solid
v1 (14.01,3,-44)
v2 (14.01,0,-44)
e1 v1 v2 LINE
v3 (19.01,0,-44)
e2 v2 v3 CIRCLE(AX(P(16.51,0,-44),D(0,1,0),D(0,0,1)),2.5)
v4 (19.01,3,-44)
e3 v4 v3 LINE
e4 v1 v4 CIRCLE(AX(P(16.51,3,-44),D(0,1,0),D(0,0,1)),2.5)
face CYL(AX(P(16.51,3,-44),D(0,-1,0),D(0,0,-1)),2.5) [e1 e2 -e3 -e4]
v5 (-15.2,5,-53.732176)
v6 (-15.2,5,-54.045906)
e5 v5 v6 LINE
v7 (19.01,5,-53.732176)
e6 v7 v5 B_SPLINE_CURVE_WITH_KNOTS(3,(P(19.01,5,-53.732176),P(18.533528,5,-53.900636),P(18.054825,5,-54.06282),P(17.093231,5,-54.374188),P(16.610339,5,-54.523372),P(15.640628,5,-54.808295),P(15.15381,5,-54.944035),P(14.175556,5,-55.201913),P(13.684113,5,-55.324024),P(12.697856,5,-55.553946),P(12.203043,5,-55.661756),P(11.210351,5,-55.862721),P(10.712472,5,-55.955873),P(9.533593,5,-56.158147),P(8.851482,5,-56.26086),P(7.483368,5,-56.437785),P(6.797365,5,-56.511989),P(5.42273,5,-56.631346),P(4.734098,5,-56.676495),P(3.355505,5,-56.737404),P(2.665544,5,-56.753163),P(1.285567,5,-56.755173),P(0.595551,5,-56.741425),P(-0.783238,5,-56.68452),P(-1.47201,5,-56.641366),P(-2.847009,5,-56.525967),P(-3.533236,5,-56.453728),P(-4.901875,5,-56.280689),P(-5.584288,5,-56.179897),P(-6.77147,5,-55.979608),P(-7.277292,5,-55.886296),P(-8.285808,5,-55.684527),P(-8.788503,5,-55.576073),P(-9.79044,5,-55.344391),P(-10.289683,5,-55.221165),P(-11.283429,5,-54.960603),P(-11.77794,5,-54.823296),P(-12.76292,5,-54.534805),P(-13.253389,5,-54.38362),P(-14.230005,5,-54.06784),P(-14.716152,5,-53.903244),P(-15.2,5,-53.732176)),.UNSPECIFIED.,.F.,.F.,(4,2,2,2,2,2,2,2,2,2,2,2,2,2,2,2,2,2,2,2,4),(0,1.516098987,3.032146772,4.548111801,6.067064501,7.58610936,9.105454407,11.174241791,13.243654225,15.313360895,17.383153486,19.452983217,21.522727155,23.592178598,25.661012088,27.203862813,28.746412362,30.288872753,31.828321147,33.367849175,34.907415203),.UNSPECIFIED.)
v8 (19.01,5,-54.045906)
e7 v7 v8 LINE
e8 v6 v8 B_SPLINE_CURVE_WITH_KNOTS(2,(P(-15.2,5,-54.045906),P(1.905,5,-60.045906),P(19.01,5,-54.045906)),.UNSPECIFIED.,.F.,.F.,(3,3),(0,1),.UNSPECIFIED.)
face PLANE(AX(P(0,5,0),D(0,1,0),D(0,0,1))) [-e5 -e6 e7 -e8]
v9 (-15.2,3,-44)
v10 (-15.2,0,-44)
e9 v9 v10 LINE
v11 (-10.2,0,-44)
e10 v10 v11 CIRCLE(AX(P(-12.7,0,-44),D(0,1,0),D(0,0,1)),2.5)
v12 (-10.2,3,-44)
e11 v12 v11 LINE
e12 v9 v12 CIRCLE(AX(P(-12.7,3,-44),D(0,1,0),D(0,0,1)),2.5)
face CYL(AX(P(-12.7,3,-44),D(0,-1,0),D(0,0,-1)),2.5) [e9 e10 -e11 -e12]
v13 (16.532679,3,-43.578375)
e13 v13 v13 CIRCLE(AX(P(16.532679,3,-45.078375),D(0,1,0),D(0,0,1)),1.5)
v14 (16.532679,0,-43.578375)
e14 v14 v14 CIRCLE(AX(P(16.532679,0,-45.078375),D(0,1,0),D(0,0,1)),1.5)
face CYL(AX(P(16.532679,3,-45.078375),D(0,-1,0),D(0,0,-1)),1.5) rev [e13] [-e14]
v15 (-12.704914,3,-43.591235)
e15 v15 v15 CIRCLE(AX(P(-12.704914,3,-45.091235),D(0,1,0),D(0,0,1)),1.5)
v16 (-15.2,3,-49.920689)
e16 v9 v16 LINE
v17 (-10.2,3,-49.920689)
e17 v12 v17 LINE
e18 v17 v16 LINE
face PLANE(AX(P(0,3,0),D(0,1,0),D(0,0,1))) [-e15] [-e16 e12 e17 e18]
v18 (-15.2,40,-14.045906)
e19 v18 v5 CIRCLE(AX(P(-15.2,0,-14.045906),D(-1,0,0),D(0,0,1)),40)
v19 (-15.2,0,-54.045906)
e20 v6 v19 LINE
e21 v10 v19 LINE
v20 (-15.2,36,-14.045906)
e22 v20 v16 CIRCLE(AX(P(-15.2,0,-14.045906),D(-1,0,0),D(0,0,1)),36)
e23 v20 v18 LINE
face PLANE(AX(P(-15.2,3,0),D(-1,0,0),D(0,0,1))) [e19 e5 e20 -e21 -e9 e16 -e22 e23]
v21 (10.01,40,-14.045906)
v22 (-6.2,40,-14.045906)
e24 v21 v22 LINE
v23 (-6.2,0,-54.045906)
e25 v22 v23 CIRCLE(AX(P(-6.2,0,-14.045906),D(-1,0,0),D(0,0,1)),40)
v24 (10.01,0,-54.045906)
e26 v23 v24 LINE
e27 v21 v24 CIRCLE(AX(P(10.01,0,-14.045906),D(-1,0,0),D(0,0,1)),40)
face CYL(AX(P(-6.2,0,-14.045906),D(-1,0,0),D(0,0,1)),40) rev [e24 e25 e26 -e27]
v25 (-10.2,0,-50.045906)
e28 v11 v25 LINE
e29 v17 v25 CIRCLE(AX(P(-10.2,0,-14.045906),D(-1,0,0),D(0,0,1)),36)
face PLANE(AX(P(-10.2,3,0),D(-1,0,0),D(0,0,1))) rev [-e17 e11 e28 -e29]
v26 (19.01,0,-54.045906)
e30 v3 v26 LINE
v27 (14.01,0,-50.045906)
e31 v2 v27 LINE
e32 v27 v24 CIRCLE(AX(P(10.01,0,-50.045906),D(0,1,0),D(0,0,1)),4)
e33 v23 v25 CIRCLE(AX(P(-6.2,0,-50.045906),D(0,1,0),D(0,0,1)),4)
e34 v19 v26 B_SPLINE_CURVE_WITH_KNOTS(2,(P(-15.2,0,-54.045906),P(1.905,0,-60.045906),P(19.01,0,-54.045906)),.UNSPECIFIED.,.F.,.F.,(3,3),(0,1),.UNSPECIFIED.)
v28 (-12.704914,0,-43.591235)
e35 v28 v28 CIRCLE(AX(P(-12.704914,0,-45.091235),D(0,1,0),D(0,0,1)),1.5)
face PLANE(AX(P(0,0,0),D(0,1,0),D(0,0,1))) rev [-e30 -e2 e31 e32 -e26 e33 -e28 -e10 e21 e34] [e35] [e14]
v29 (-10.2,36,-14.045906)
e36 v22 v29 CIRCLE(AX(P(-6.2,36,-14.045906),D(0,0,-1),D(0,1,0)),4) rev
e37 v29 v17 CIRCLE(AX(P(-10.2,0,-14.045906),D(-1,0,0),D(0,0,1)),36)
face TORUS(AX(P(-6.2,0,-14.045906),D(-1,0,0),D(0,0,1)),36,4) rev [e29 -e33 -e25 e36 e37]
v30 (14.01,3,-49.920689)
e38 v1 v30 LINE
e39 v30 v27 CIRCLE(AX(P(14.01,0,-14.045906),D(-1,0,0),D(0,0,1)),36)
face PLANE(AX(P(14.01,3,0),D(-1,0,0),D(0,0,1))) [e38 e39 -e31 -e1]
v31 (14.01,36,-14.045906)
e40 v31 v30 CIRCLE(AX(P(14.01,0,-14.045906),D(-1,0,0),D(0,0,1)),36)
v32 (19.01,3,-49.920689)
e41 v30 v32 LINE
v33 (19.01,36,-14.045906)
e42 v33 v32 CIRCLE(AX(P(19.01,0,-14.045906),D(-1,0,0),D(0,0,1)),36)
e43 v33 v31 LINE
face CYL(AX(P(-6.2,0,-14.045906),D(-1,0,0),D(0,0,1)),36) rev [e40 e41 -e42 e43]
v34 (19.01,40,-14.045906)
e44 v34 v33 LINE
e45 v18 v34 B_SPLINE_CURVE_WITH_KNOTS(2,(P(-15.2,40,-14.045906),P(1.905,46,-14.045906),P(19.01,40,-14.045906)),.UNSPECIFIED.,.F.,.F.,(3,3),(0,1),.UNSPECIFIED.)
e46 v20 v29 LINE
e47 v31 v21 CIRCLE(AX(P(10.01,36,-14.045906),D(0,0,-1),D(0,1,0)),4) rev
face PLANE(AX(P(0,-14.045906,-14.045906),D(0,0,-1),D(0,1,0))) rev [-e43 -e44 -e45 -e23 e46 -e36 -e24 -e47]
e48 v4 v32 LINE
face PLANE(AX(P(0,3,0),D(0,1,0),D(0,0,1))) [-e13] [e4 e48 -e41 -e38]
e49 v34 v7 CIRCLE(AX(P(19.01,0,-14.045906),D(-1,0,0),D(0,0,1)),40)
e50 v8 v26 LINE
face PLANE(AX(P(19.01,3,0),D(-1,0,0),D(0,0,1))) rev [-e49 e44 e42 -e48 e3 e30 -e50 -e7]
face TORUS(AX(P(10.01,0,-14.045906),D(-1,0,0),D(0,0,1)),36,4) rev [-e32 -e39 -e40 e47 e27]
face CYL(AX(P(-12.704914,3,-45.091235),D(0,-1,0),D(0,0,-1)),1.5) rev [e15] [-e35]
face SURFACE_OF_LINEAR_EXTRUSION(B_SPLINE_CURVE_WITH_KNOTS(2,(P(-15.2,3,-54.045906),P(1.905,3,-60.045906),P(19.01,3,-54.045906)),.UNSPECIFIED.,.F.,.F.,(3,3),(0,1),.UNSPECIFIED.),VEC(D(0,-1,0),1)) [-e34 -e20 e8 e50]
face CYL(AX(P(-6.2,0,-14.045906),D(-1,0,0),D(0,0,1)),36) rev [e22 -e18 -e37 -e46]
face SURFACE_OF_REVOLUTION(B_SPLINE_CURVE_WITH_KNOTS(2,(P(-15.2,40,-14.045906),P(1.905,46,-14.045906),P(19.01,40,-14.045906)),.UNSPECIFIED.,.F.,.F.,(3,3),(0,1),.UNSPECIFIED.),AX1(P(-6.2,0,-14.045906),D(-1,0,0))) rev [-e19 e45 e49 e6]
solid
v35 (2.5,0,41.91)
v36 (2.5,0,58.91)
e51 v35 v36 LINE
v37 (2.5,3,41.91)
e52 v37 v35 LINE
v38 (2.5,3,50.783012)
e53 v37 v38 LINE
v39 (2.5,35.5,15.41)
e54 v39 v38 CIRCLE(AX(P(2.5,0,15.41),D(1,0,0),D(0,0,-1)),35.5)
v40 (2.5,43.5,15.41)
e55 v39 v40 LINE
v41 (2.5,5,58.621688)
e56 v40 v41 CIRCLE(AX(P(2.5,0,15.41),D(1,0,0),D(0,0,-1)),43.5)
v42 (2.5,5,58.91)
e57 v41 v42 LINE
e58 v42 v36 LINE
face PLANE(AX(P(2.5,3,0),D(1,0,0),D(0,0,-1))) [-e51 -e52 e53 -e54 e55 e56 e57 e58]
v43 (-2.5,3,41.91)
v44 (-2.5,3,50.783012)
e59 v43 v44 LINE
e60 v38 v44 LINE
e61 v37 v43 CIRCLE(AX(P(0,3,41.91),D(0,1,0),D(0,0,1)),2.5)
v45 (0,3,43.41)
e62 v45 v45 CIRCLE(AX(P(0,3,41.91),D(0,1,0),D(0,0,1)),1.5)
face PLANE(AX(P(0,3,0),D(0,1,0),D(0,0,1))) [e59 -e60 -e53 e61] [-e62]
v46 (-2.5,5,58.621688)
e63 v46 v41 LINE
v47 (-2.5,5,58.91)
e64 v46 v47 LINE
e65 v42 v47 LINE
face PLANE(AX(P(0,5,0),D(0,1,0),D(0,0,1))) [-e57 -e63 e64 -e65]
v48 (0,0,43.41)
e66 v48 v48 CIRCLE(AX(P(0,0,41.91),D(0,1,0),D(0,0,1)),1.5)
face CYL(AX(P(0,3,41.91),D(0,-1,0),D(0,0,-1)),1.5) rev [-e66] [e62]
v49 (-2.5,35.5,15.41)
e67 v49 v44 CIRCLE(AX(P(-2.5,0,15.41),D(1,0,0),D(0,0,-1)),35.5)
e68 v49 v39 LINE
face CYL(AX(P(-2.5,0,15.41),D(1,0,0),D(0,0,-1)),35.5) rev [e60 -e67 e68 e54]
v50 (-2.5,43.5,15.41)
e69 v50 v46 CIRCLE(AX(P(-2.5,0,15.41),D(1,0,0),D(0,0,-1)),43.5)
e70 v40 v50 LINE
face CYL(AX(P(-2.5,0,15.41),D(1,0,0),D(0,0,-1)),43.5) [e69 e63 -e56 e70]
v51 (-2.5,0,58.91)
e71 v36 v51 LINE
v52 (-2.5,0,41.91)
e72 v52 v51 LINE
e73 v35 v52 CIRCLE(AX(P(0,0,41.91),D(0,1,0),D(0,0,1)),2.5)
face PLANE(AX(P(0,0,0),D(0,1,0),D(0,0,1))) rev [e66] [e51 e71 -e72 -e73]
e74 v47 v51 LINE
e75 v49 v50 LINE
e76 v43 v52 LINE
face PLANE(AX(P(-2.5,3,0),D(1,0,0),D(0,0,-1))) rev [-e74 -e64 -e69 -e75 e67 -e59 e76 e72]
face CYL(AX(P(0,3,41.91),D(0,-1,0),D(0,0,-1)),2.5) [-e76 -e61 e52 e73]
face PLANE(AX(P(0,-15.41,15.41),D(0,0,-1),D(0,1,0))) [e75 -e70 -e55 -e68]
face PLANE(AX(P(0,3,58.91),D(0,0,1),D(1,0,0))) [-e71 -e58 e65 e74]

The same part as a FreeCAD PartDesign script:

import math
import FreeCAD as App
import Part
import Sketcher
from FreeCAD import Vector

doc = App.newDocument("Part")
body = doc.addObject("PartDesign::Body", "Body")

# Sketch on XZ plane
sketch1 = doc.addObject("Sketcher::SketchObject", "Sketch")
body.addObject(sketch1)
sketch1.AttachmentSupport = (doc.XZ_Plane, [""])
sketch1.MapMode = "FlatFace"
sketch1.addGeometry([
    Part.ArcOfCircle(Part.Circle(Vector(16.51, -44, 0), Vector(0, 0, 1), 2.5), math.radians(0), math.radians(180)),  # 0
    Part.LineSegment(Vector(19.01, -44, 0), Vector(19.01, -54.045906, 0)),  # 1
    Part.BSplineCurve([Vector(-15.2, -54.045906, 0), Vector(1.905, -60.045906, 0), Vector(19.01, -54.045906, 0)], [3, 3], [0, 1], False, 2, [1, 1, 1], False),  # 2
    Part.LineSegment(Vector(-15.2, -54.045906, 0), Vector(-15.2, -44, 0)),  # 3
    Part.ArcOfCircle(Part.Circle(Vector(-12.7, -44, 0), Vector(0, 0, 1), 2.5), math.radians(0), math.radians(180)),  # 4
    Part.LineSegment(Vector(-10.2, -44, 0), Vector(-10.2, -50.045906, 0)),  # 5
    Part.ArcOfCircle(Part.Circle(Vector(-6.2, -50.045906, 0), Vector(0, 0, 1), 4), math.radians(180), math.radians(270)),  # 6
    Part.LineSegment(Vector(-6.2, -54.045906, 0), Vector(10.01, -54.045906, 0)),  # 7
    Part.ArcOfCircle(Part.Circle(Vector(10.01, -50.045906, 0), Vector(0, 0, 1), 4), math.radians(-90), math.radians(0)),  # 8
    Part.LineSegment(Vector(14.01, -50.045906, 0), Vector(14.01, -44, 0)),  # 9
    Part.Circle(Vector(16.532679, -45.078375, 0), Vector(0, 0, 1), 1.5),  # 10
    Part.Circle(Vector(-12.704914, -45.091235, 0), Vector(0, 0, 1), 1.5),  # 11
], False)
sketch1.addConstraint([
    Sketcher.Constraint("Block", 2),
    Sketcher.Constraint("Tangent", 0, 1, 1, 1),
    Sketcher.Constraint("Coincident", 1, 2, 2, 2),
    Sketcher.Constraint("Coincident", 2, 1, 3, 1),
    Sketcher.Constraint("Tangent", 3, 2, 4, 2),
    Sketcher.Constraint("Tangent", 4, 1, 5, 1),
    Sketcher.Constraint("Tangent", 5, 2, 6, 1),
    Sketcher.Constraint("Tangent", 6, 2, 7, 1),
    Sketcher.Constraint("Tangent", 7, 2, 8, 1),
    Sketcher.Constraint("Tangent", 8, 2, 9, 1),
    Sketcher.Constraint("Tangent", 9, 2, 0, 2),
    Sketcher.Constraint("Vertical", 1),
    Sketcher.Constraint("Vertical", 3),
    Sketcher.Constraint("Vertical", 5),
    Sketcher.Constraint("Horizontal", 7),
    Sketcher.Constraint("Vertical", 9),
    Sketcher.Constraint("Equal", 0, 4),
    Sketcher.Constraint("Equal", 6, 8),
    Sketcher.Constraint("Equal", 10, 11),
    Sketcher.Constraint("Horizontal", 0, 3, 4, 3),
    Sketcher.Constraint("Horizontal", 1, 2, 6, 2),
    Sketcher.Constraint("Diameter", 10, 3.0),
    Sketcher.Constraint("Radius", 6, 4.0),
    Sketcher.Constraint("Radius", 0, 2.5),
    Sketcher.Constraint("DistanceY", 0, 3, -1, 1, 44.0),
    Sketcher.Constraint("DistanceX", -1, 1, 10, 3, 16.532679),
    Sketcher.Constraint("DistanceY", 8, 3, 10, 3, 4.967531),
    Sketcher.Constraint("DistanceY", 6, 3, 11, 3, 4.954672),
    Sketcher.Constraint("DistanceX", 11, 3, -1, 1, 12.704914),
])
pad1 = doc.addObject("PartDesign::Pad", "Pad")
body.addObject(pad1)
pad1.Profile = sketch1
pad1.Length = 3
pad1.Reversed = True
body2 = doc.addObject("PartDesign::Body", "Body001")

# Sketch on XZ plane
sketch2 = doc.addObject("Sketcher::SketchObject", "Sketch001")
body2.addObject(sketch2)
sketch2.AttachmentSupport = (doc.getObject("XZ_Plane001"), [""])
sketch2.MapMode = "FlatFace"
sketch2.addGeometry([
    Part.ArcOfCircle(Part.Circle(Vector(0, 41.9, 0), Vector(0, 0, 1), 2.5), math.radians(180), math.radians(360)),  # 0
    Part.LineSegment(Vector(-2.5, 41.9, 0), Vector(-2.5, 58.9, 0)),  # 1
    Part.LineSegment(Vector(-2.5, 58.9, 0), Vector(2.5, 58.9, 0)),  # 2
    Part.LineSegment(Vector(2.5, 58.9, 0), Vector(2.5, 41.9, 0)),  # 3
    Part.Circle(Vector(0, 41.9, 0), Vector(0, 0, 1), 1.5),  # 4
], False)
sketch2.addConstraint([
    Sketcher.Constraint("Tangent", 0, 1, 1, 1),
    Sketcher.Constraint("Coincident", 1, 2, 2, 1),
    Sketcher.Constraint("Coincident", 2, 2, 3, 1),
    Sketcher.Constraint("Tangent", 3, 2, 0, 2),
    Sketcher.Constraint("Vertical", 1),
    Sketcher.Constraint("Horizontal", 2),
    Sketcher.Constraint("Vertical", 3),
    Sketcher.Constraint("Coincident", 4, 3, 0, 3),
    Sketcher.Constraint("PointOnObject", 0, 3, -2),
    Sketcher.Constraint("Diameter", 4, 3.0),
    Sketcher.Constraint("Radius", 0, 2.5),
    Sketcher.Constraint("DistanceY", 1, 1, 1, 2, 17.0),
    Sketcher.Constraint("DistanceY", -1, 1, 0, 3, 41.91),
])
pad2 = doc.addObject("PartDesign::Pad", "Pad001")
body2.addObject(pad2)
pad2.Profile = sketch2
pad2.Length = 3
pad2.Reversed = True
body.AllowCompound = True
doc.recompute()

boolean = doc.addObject("PartDesign::Boolean", "Boolean")
body.addObject(boolean)
boolean.Type = "Fuse"
boolean.addObjects([body2])

# Sketch on XZ plane
sketch3 = doc.addObject("Sketcher::SketchObject", "Sketch002")
body.addObject(sketch3)
sketch3.AttachmentSupport = (doc.XZ_Plane, [""])
sketch3.MapMode = "FlatFace"
sketch3.addGeometry([
    Part.ArcOfCircle(Part.Circle(Vector(-6.2, -50.045906, 0), Vector(0, 0, 1), 4), math.radians(180), math.radians(270)),  # 0
    Part.LineSegment(Vector(-6.2, -54.045906, 0), Vector(10.01, -54.045906, 0)),  # 1
    Part.ArcOfCircle(Part.Circle(Vector(10.01, -50.045906, 0), Vector(0, 0, 1), 4), math.radians(-90), math.radians(0)),  # 2
    Part.LineSegment(Vector(14.01, -50.045906, 0), Vector(19.01, -50.045906, 0)),  # 3
    Part.LineSegment(Vector(19.01, -50.045906, 0), Vector(19.01, -54.045906, 0)),  # 4
    Part.BSplineCurve([Vector(-15.2, -54.045906, 0), Vector(1.905, -60.045906, 0), Vector(19.01, -54.045906, 0)], [3, 3], [0, 1], False, 2, [1, 1, 1], False),  # 5
    Part.LineSegment(Vector(-15.2, -54.045906, 0), Vector(-15.2, -50.045906, 0)),  # 6
    Part.LineSegment(Vector(-15.2, -50.045906, 0), Vector(-10.2, -50.045906, 0)),  # 7
    Part.LineSegment(Vector(-2.5, 50.91, 0), Vector(-2.5, 58.91, 0)),  # 8
    Part.LineSegment(Vector(-2.5, 58.91, 0), Vector(2.5, 58.91, 0)),  # 9
    Part.LineSegment(Vector(2.5, 58.91, 0), Vector(2.5, 50.91, 0)),  # 10
    Part.LineSegment(Vector(2.5, 50.91, 0), Vector(-2.5, 50.91, 0)),  # 11
], False)
sketch3.addConstraint([
    Sketcher.Constraint("Block", 5),
    Sketcher.Constraint("Tangent", 0, 2, 1, 1),
    Sketcher.Constraint("Tangent", 1, 2, 2, 1),
    Sketcher.Constraint("Coincident", 2, 2, 3, 1),
    Sketcher.Constraint("Coincident", 3, 2, 4, 1),
    Sketcher.Constraint("Coincident", 4, 2, 5, 2),
    Sketcher.Constraint("Coincident", 5, 1, 6, 1),
    Sketcher.Constraint("Coincident", 6, 2, 7, 1),
    Sketcher.Constraint("Coincident", 7, 2, 0, 1),
    Sketcher.Constraint("Coincident", 8, 2, 9, 1),
    Sketcher.Constraint("Coincident", 9, 2, 10, 1),
    Sketcher.Constraint("Coincident", 10, 2, 11, 1),
    Sketcher.Constraint("Coincident", 11, 2, 8, 1),
    Sketcher.Constraint("Horizontal", 1),
    Sketcher.Constraint("Horizontal", 3),
    Sketcher.Constraint("Vertical", 4),
    Sketcher.Constraint("Vertical", 6),
    Sketcher.Constraint("Horizontal", 7),
    Sketcher.Constraint("Vertical", 8),
    Sketcher.Constraint("Horizontal", 9),
    Sketcher.Constraint("Vertical", 10),
    Sketcher.Constraint("Horizontal", 11),
    Sketcher.Constraint("Equal", 0, 2),
    Sketcher.Constraint("Horizontal", 0, 3, 2, 2),
    Sketcher.Constraint("Horizontal", 1, 2, 4, 2),
    Sketcher.Constraint("Horizontal", 3, 2, 6, 2),
    Sketcher.Constraint("Equal", 3, 7),
    Sketcher.Constraint("Equal", 7, 9),
    Sketcher.Constraint("Radius", 0, 4.0),
    Sketcher.Constraint("DistanceX", 3, 1, 3, 2, 5.0),
    Sketcher.Constraint("DistanceY", 8, 1, 8, 2, 8.0),
    Sketcher.Constraint("DistanceX", 8, 2, -1, 1, 2.5),
    Sketcher.Constraint("DistanceY", -1, 1, 8, 2, 58.91),
])
pad3 = doc.addObject("PartDesign::Pad", "Pad002")
body.addObject(pad3)
pad3.Profile = sketch3
pad3.Length = 5
pad3.Reversed = True

# Sketch on XZ plane
sketch4 = doc.addObject("Sketcher::SketchObject", "Sketch003")
body.addObject(sketch4)
sketch4.AttachmentSupport = (doc.XZ_Plane, [""])
sketch4.MapMode = "FlatFace"
sketch4.addGeometry([
    Part.LineSegment(Vector(-10.2, -50.045906, 0), Vector(-15.2, -50.045906, 0)),  # 0
    Part.LineSegment(Vector(-15.2, -50.045906, 0), Vector(-15.2, -54.045906, 0)),  # 1
    Part.BSplineCurve([Vector(-15.2, -54.045906, 0), Vector(1.905, -60.045906, 0), Vector(19.01, -54.045906, 0)], [3, 3], [0, 1], False, 2, [1, 1, 1], False),  # 2
    Part.LineSegment(Vector(19.01, -54.045906, 0), Vector(19.01, -50.045906, 0)),  # 3
    Part.LineSegment(Vector(19.01, -50.045906, 0), Vector(14.01, -50.045906, 0)),  # 4
    Part.ArcOfCircle(Part.Circle(Vector(10.01, -50.045906, 0), Vector(0, 0, 1), 4), math.radians(-90), math.radians(0)),  # 5
    Part.LineSegment(Vector(10.01, -54.045906, 0), Vector(-6.2, -54.045906, 0)),  # 6
    Part.ArcOfCircle(Part.Circle(Vector(-6.2, -50.045906, 0), Vector(0, 0, 1), 4), math.radians(180), math.radians(270)),  # 7
], False)
sketch4.addGeometry(Part.LineSegment(Vector(-15.2, -14.045906, 0), Vector(19.01, -14.045906, 0)), True)  # axis
sketch4.addConstraint([
    Sketcher.Constraint("Block", 2),
    Sketcher.Constraint("Coincident", 0, 2, 1, 1),
    Sketcher.Constraint("Coincident", 1, 2, 2, 1),
    Sketcher.Constraint("Coincident", 2, 2, 3, 1),
    Sketcher.Constraint("Coincident", 3, 2, 4, 1),
    Sketcher.Constraint("Coincident", 4, 2, 5, 2),
    Sketcher.Constraint("Tangent", 5, 1, 6, 1),
    Sketcher.Constraint("Tangent", 6, 2, 7, 2),
    Sketcher.Constraint("Coincident", 7, 1, 0, 1),
    Sketcher.Constraint("Horizontal", 0),
    Sketcher.Constraint("Vertical", 1),
    Sketcher.Constraint("Vertical", 3),
    Sketcher.Constraint("Horizontal", 4),
    Sketcher.Constraint("Horizontal", 6),
    Sketcher.Constraint("Horizontal", 8),
    Sketcher.Constraint("Equal", 5, 7),
    Sketcher.Constraint("Horizontal", 7, 3, 0, 2),
    Sketcher.Constraint("Horizontal", 0, 2, 3, 2),
    Sketcher.Constraint("Horizontal", 1, 2, 5, 1),
    Sketcher.Constraint("Vertical", 1, 2, 8, 1),
    Sketcher.Constraint("Vertical", 3, 2, 8, 2),
    Sketcher.Constraint("Equal", 0, 4),
    Sketcher.Constraint("Radius", 5, 4.0),
    Sketcher.Constraint("DistanceX", 0, 2, 0, 1, 5.0),
    Sketcher.Constraint("DistanceY", 0, 2, 8, 1, 36.0),
])
revolution = doc.addObject("PartDesign::Revolution", "Revolution")
body.addObject(revolution)
revolution.Profile = sketch4
revolution.ReferenceAxis = (sketch4, ["Axis0"])
revolution.Angle = 90

# Sketch on XZ plane
sketch5 = doc.addObject("Sketcher::SketchObject", "Sketch004")
body.addObject(sketch5)
sketch5.AttachmentSupport = (doc.XZ_Plane, [""])
sketch5.MapMode = "FlatFace"
sketch5.addGeometry([
    Part.LineSegment(Vector(-2, 51, 0), Vector(-2, 59, 0)),
    Part.LineSegment(Vector(-2, 59, 0), Vector(2, 59, 0)),
    Part.LineSegment(Vector(2, 59, 0), Vector(2, 51, 0)),
    Part.LineSegment(Vector(2, 51, 0), Vector(-2, 51, 0)),
], False)
sketch5.addGeometry(Part.LineSegment(Vector(2, 15, 0), Vector(-2, 15, 0)), True)  # axis
sketch5.addConstraint([
    Sketcher.Constraint("Coincident", 0, 2, 1, 1),
    Sketcher.Constraint("Coincident", 1, 2, 2, 1),
    Sketcher.Constraint("Coincident", 2, 2, 3, 1),
    Sketcher.Constraint("Coincident", 3, 2, 0, 1),
    Sketcher.Constraint("Vertical", 0),
    Sketcher.Constraint("Horizontal", 1),
    Sketcher.Constraint("Vertical", 2),
    Sketcher.Constraint("Horizontal", 3),
    Sketcher.Constraint("Horizontal", 4),
    Sketcher.Constraint("Vertical", 2, 2, 4, 1),
    Sketcher.Constraint("Vertical", 3, 2, 4, 2),
    Sketcher.Constraint("DistanceX", 1, 1, 1, 2, 5.0),
    Sketcher.Constraint("DistanceY", 0, 1, 0, 2, 8.0),
    Sketcher.Constraint("DistanceX", 0, 2, -1, 1, 2.5),
    Sketcher.Constraint("DistanceY", 4, 1, 2, 2, 35.5),
    Sketcher.Constraint("DistanceY", -1, 1, 0, 2, 58.91),
])
revolution2 = doc.addObject("PartDesign::Revolution", "Revolution001")
body.addObject(revolution2)
revolution2.Profile = sketch5
revolution2.ReferenceAxis = (sketch5, ["Axis0"])
revolution2.Angle = 90

doc.recompute()
